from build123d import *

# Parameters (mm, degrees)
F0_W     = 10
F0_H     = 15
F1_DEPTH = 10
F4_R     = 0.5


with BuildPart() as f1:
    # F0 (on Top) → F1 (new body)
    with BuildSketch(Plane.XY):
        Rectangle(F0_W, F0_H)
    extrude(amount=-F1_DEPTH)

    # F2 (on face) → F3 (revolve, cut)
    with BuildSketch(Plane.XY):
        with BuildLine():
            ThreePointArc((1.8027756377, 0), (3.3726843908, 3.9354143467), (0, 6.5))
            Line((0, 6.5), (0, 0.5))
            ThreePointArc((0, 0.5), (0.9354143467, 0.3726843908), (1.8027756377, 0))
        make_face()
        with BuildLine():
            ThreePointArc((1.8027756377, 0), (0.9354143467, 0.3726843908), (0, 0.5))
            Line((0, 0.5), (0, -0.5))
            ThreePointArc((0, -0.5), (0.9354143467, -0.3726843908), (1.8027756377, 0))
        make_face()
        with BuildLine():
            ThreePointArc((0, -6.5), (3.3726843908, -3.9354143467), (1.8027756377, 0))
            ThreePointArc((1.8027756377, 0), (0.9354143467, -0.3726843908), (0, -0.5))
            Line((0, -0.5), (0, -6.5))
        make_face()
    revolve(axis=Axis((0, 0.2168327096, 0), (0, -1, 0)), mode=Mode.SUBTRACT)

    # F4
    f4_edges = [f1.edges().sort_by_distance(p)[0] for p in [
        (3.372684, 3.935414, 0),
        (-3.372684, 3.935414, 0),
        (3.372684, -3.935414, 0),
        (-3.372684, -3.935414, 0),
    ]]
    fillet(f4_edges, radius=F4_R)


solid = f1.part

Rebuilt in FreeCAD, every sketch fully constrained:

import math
import FreeCAD as App
import Part
import Sketcher

V = App.Vector


def edges_at(feature, points):
    """Names of the edges that pass closest to the given points."""
    edges = feature.Shape.Edges
    near = lambda p: min(range(len(edges)), key=lambda i: edges[i].distToShape(Part.Vertex(*p))[0])
    return sorted({f"Edge{near(p) + 1}" for p in points})


def add_polygon(sketch, points):
    """Adds a closed chain of lines whose ends are joined by coincident constraints."""
    first, n = sketch.GeometryCount, len(points)
    for a, b in zip(points, points[1:] + points[:1]):
        sketch.addGeometry(Part.LineSegment(App.Vector(*a, 0), App.Vector(*b, 0)), False)
    for i in range(n):
        sketch.addConstraint(Sketcher.Constraint("Coincident", first + i, 2, first + (i + 1) % n, 1))

doc = App.newDocument("Part")
body = doc.addObject("PartDesign::Body", "Body")

# Sketch on XY plane
sketch1 = body.newObject("Sketcher::SketchObject", "Sketch")
sketch1.AttachmentSupport = (doc.getObject("XY_Plane"), [""])
sketch1.MapMode = "FlatFace"
add_polygon(sketch1, [(-5, 8), (-5, -8), (5, -8), (5, 8)])  # lines 0-3
sketch1.addConstraint([
    Sketcher.Constraint("Vertical", 0),
    Sketcher.Constraint("Horizontal", 1),
    Sketcher.Constraint("Vertical", 2),
    Sketcher.Constraint("Horizontal", 3),
    Sketcher.Constraint("Symmetric", 0, 2, 2, 2, -1, 1),
    Sketcher.Constraint("DistanceX", 1, 1, 1, 2, 10.0),
    Sketcher.Constraint("DistanceY", 0, 2, 0, 1, 15.0),
])
pad1 = body.newObject("PartDesign::Pad", "Pad")
pad1.Profile = sketch1
pad1.Length = 10
pad1.Reversed = True

# Sketch on XY plane
sketch2 = body.newObject("Sketcher::SketchObject", "Sketch001")
sketch2.AttachmentSupport = (doc.getObject("XY_Plane"), [""])
sketch2.MapMode = "FlatFace"
sketch2.addGeometry([
    Part.ArcOfCircle(Part.Circle(V(0, 3, 0), V(0, 0, 1), 3.5), math.radians(-59), math.radians(90)),
    Part.LineSegment(V(0, 6.5, 0), V(0, -6.5, 0)),
    Part.ArcOfCircle(Part.Circle(V(0, -3, 0), V(0, 0, 1), 3.5), math.radians(-90), math.radians(59)),
], False)
sketch2.addConstraint([
    Sketcher.Constraint("Coincident", 0, 2, 1, 1),
    Sketcher.Constraint("Coincident", 1, 2, 2, 1),
    Sketcher.Constraint("Coincident", 2, 2, 0, 1),
    Sketcher.Constraint("Vertical", 1),
    Sketcher.Constraint("Equal", 0, 2),
    Sketcher.Constraint("Symmetric", 0, 3, 2, 3, -1, 1),
    Sketcher.Constraint("PointOnObject", 0, 3, -2),
    Sketcher.Constraint("PointOnObject", 0, 2, -2),
    Sketcher.Constraint("Radius", 0, 3.5),
    Sketcher.Constraint("DistanceY", 1, 2, 1, 1, 13.0),
])
groove = body.newObject("PartDesign::Groove", "Groove")
groove.Profile = sketch2
groove.ReferenceAxis = (sketch2, ["V_Axis"])
groove.Angle = 360
doc.recompute()

fillet = body.newObject("PartDesign::Fillet", "Fillet")
fillet.Base = (groove, edges_at(groove, [
    (3.373, 3.935, 0),
    (-3.373, 3.935, 0),
    (3.373, -3.935, 0),
    (-3.373, -3.935, 0),
]))
fillet.Radius = 0.5

doc.recompute()
